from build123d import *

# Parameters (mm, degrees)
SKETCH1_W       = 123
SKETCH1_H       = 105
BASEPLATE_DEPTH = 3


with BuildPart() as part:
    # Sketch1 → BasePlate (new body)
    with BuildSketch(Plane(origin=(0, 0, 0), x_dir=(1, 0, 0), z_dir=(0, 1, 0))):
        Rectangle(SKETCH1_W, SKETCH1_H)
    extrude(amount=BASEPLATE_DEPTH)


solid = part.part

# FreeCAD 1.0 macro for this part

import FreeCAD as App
import Part
import Sketcher

V = App.Vector
Q = App.Units.Quantity


def add_polygon(sketch, points):
    """Adds a closed chain of lines whose ends are joined by coincident constraints."""
    first, n = sketch.GeometryCount, len(points)
    for a, b in zip(points, points[1:] + points[:1]):
        sketch.addGeometry(Part.LineSegment(App.Vector(*a, 0), App.Vector(*b, 0)), False)
    for i in range(n):
        sketch.addConstraint(Sketcher.Constraint("Coincident", first + i, 2, first + (i + 1) % n, 1))

doc = App.newDocument("Part")
params = doc.addObject("Spreadsheet::Sheet", "Params")
for row, (alias, value) in enumerate([
    ("sketch1_width", "123 mm"),
    ("sketch1_height", "105 mm"),
    ("pad1_length", "3 mm"),
], start=1):
    params.set(f"A{row}", alias)
    params.set(f"B{row}", "=" + value)
    params.setAlias(f"B{row}", alias)

body = doc.addObject("PartDesign::Body", "Body")

# Sketch on XZ plane
sketch1 = body.newObject("Sketcher::SketchObject", "Sketch")
sketch1.AttachmentSupport = (doc.getObject("XZ_Plane"), [""])
sketch1.MapMode = "FlatFace"
add_polygon(sketch1, [(-61.5, -52.5), (-61.5, 52.5), (61.5, 52.5), (61.5, -52.5)])  # lines 0-3
sketch1.addConstraint([
    Sketcher.Constraint("Vertical", 0),
    Sketcher.Constraint("Horizontal", 1),
    Sketcher.Constraint("Vertical", 2),
    Sketcher.Constraint("Horizontal", 3),
    Sketcher.Constraint("Symmetric", 0, 2, 2, 2, -1, 1),
    Sketcher.Constraint("DistanceX", 1, 1, 1, 2, Q("123 mm")),
    Sketcher.Constraint("DistanceY", 0, 1, 0, 2, Q("105 mm")),
])
sketch1.setExpression("Constraints[9]", "Params.sketch1_width")
sketch1.setExpression("Constraints[10]", "Params.sketch1_height")
pad1 = body.newObject("PartDesign::Pad", "Pad")
pad1.Profile = sketch1
pad1.setExpression("Length", "Params.pad1_length")
pad1.Reversed = True

doc.recompute()
